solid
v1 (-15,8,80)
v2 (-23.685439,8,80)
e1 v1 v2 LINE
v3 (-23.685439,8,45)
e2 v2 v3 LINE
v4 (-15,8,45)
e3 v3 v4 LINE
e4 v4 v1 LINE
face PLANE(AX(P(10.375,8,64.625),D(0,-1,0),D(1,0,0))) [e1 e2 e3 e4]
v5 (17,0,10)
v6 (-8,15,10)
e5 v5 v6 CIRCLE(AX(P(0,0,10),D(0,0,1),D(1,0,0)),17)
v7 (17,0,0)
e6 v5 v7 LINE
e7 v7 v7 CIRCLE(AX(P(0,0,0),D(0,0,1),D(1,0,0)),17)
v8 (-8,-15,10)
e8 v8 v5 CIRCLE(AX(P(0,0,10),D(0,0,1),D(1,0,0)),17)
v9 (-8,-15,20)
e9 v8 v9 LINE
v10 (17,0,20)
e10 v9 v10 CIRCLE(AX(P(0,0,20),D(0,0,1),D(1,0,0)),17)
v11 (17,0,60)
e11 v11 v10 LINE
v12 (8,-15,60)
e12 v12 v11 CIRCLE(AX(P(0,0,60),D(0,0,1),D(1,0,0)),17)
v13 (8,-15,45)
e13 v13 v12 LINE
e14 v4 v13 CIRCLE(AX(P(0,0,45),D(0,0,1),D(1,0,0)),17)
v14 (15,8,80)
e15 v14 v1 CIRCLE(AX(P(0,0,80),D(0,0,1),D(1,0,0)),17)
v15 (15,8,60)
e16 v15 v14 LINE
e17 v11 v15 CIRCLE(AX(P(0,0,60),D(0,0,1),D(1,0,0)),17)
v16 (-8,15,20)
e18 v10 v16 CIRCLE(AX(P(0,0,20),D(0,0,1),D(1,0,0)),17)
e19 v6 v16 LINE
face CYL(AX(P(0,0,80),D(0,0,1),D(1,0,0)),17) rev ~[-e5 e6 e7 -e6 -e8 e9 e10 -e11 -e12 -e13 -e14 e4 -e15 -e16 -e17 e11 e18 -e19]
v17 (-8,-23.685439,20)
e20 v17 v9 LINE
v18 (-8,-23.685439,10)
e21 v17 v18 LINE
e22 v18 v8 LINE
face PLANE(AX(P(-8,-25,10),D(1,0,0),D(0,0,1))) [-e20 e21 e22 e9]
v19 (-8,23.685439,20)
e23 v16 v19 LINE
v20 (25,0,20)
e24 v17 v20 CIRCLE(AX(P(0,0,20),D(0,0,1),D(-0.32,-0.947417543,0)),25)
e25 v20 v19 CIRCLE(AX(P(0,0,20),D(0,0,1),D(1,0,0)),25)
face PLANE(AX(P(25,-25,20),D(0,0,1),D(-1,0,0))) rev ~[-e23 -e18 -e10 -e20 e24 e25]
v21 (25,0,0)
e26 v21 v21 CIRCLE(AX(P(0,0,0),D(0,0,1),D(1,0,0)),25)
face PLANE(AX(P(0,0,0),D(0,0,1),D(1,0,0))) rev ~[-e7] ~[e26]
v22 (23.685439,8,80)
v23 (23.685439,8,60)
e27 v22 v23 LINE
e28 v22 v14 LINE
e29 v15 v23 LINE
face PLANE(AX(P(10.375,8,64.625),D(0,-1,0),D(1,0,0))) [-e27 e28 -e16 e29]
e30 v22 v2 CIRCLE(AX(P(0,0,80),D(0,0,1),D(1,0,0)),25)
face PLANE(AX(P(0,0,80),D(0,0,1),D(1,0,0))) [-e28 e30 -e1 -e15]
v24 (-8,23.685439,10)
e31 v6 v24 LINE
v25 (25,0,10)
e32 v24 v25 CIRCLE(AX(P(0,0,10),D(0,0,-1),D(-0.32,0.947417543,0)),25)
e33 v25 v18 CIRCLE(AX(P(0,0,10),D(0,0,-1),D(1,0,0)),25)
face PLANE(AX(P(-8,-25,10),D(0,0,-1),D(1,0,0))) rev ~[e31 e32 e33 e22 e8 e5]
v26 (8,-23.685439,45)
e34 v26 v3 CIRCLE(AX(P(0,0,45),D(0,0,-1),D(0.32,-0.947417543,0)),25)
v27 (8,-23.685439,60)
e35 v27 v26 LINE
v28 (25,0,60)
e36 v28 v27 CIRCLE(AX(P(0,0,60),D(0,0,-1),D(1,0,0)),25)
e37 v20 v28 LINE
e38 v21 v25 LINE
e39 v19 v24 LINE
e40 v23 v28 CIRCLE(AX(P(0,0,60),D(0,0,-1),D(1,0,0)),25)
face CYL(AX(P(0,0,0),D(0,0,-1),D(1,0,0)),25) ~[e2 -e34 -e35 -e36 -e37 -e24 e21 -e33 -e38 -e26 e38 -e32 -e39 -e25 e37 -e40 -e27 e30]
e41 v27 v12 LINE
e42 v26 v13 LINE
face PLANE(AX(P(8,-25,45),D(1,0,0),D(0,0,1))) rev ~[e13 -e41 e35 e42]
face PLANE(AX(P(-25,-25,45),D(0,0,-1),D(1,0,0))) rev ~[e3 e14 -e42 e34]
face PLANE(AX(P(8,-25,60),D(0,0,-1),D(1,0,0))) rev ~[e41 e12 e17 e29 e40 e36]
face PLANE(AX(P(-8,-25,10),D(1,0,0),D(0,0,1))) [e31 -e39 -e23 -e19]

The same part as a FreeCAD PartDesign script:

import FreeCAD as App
import Part
import Sketcher


def add_polygon(sketch, points):
    """Adds a closed chain of lines whose ends are joined by coincident constraints."""
    first, n = sketch.GeometryCount, len(points)
    for a, b in zip(points, points[1:] + points[:1]):
        sketch.addGeometry(Part.LineSegment(App.Vector(*a, 0), App.Vector(*b, 0)), False)
    for i in range(n):
        sketch.addConstraint(Sketcher.Constraint("Coincident", first + i, 2, first + (i + 1) % n, 1))

doc = App.newDocument("Part")
params = doc.addObject("Spreadsheet::Sheet", "Params")
for row, (alias, value) in enumerate([
    ("sketch1_diameter", "50 mm"),
    ("pad1_length", "80 mm"),
    ("sketch2_diameter", "34 mm"),
    ("pocket1_length", "80 mm"),
    ("sketch3_width", "17 mm"),
    ("sketch3_width2", "50 mm"),
    ("sketch3_height", "15 mm"),
    ("sketch3_height2", "20 mm"),
    ("pocket2_length", "33 mm"),
    ("sketch4_width", "33 mm"),
    ("sketch4_height", "10 mm"),
    ("pocket3_length", "50 mm"),
], start=1):
    params.set(f"A{row}", alias)
    params.set(f"B{row}", "=" + value)
    params.setAlias(f"B{row}", alias)

body = doc.addObject("PartDesign::Body", "Body")

# Sketch on XY plane
sketch1 = body.newObject("Sketcher::SketchObject", "Sketch")
sketch1.AttachmentSupport = (doc.getObject("XY_Plane"), [""])
sketch1.MapMode = "FlatFace"
sketch1.addGeometry(Part.Circle(App.Vector(0, 0, 0), App.Vector(0, 0, 1), 25), False)
sketch1.addConstraint([
    Sketcher.Constraint("Coincident", 0, 3, -1, 1),
    Sketcher.Constraint("Diameter", 0, 50.0),
])
sketch1.setExpression("Constraints[1]", "Params.sketch1_diameter")
pad1 = body.newObject("PartDesign::Pad", "Pad")
pad1.Profile = sketch1
pad1.setExpression("Length", "Params.pad1_length")

# Sketch on XY plane
sketch2 = body.newObject("Sketcher::SketchObject", "Sketch001")
sketch2.AttachmentSupport = (doc.getObject("XY_Plane"), [""])
sketch2.MapMode = "FlatFace"
sketch2.AttachmentOffset = App.Placement(App.Vector(0, 0, 80), App.Rotation())
sketch2.addGeometry(Part.Circle(App.Vector(0, 0, 0), App.Vector(0, 0, 1), 17), False)
sketch2.addConstraint([
    Sketcher.Constraint("Coincident", 0, 3, -1, 1),
    Sketcher.Constraint("Diameter", 0, 34.0),
])
sketch2.setExpression("Constraints[1]", "Params.sketch2_diameter")
pocket1 = body.newObject("PartDesign::Pocket", "Pocket")
pocket1.Profile = sketch2
pocket1.setExpression("Length", "Params.pocket1_length")

# Sketch on XZ plane
sketch3 = body.newObject("Sketcher::SketchObject", "Sketch002")
sketch3.AttachmentSupport = (doc.getObject("XZ_Plane"), [""])
sketch3.MapMode = "FlatFace"
sketch3.AttachmentOffset = App.Placement(App.Vector(0, 0, 25), App.Rotation())
add_polygon(sketch3, [(8, 45), (8, 60), (25, 60), (25, 80), (-25, 80), (-25, 45)])  # lines 0-5
sketch3.addConstraint([
    Sketcher.Constraint("Vertical", 0),
    Sketcher.Constraint("Horizontal", 1),
    Sketcher.Constraint("Vertical", 2),
    Sketcher.Constraint("Horizontal", 3),
    Sketcher.Constraint("Vertical", 4),
    Sketcher.Constraint("Horizontal", 5),
    Sketcher.Constraint("DistanceX", 1, 1, 1, 2, 17.0),
    Sketcher.Constraint("DistanceX", 3, 2, 3, 1, 50.0),
    Sketcher.Constraint("DistanceY", 0, 1, 0, 2, 15.0),
    Sketcher.Constraint("DistanceY", 2, 1, 2, 2, 20.0),
    Sketcher.Constraint("DistanceX", -1, 1, 0, 2, 8.0),
    Sketcher.Constraint("DistanceY", -1, 1, 0, 2, 60.0),
])
sketch3.setExpression("Constraints[12]", "Params.sketch3_width")
sketch3.setExpression("Constraints[13]", "Params.sketch3_width2")
sketch3.setExpression("Constraints[14]", "Params.sketch3_height")
sketch3.setExpression("Constraints[15]", "Params.sketch3_height2")
pocket2 = body.newObject("PartDesign::Pocket", "Pocket001")
pocket2.Profile = sketch3
pocket2.setExpression("Length", "Params.pocket2_length")

# Sketch on XZ plane
sketch4 = body.newObject("Sketcher::SketchObject", "Sketch003")
sketch4.AttachmentSupport = (doc.getObject("XZ_Plane"), [""])
sketch4.MapMode = "FlatFace"
sketch4.AttachmentOffset = App.Placement(App.Vector(0, 0, 25), App.Rotation())
add_polygon(sketch4, [(-8, 20), (-8, 10), (25, 10), (25, 20)])  # lines 0-3
sketch4.addConstraint([
    Sketcher.Constraint("Vertical", 0),
    Sketcher.Constraint("Horizontal", 1),
    Sketcher.Constraint("Vertical", 2),
    Sketcher.Constraint("Horizontal", 3),
    Sketcher.Constraint("DistanceX", 1, 1, 1, 2, 33.0),
    Sketcher.Constraint("DistanceY", 0, 2, 0, 1, 10.0),
    Sketcher.Constraint("DistanceX", 0, 2, -1, 1, 8.0),
    Sketcher.Constraint("DistanceY", -1, 1, 0, 2, 10.0),
])
sketch4.setExpression("Constraints[8]", "Params.sketch4_width")
sketch4.setExpression("Constraints[9]", "Params.sketch4_height")
pocket3 = body.newObject("PartDesign::Pocket", "Pocket002")
pocket3.Profile = sketch4
pocket3.setExpression("Length", "Params.pocket3_length")

doc.recompute()
